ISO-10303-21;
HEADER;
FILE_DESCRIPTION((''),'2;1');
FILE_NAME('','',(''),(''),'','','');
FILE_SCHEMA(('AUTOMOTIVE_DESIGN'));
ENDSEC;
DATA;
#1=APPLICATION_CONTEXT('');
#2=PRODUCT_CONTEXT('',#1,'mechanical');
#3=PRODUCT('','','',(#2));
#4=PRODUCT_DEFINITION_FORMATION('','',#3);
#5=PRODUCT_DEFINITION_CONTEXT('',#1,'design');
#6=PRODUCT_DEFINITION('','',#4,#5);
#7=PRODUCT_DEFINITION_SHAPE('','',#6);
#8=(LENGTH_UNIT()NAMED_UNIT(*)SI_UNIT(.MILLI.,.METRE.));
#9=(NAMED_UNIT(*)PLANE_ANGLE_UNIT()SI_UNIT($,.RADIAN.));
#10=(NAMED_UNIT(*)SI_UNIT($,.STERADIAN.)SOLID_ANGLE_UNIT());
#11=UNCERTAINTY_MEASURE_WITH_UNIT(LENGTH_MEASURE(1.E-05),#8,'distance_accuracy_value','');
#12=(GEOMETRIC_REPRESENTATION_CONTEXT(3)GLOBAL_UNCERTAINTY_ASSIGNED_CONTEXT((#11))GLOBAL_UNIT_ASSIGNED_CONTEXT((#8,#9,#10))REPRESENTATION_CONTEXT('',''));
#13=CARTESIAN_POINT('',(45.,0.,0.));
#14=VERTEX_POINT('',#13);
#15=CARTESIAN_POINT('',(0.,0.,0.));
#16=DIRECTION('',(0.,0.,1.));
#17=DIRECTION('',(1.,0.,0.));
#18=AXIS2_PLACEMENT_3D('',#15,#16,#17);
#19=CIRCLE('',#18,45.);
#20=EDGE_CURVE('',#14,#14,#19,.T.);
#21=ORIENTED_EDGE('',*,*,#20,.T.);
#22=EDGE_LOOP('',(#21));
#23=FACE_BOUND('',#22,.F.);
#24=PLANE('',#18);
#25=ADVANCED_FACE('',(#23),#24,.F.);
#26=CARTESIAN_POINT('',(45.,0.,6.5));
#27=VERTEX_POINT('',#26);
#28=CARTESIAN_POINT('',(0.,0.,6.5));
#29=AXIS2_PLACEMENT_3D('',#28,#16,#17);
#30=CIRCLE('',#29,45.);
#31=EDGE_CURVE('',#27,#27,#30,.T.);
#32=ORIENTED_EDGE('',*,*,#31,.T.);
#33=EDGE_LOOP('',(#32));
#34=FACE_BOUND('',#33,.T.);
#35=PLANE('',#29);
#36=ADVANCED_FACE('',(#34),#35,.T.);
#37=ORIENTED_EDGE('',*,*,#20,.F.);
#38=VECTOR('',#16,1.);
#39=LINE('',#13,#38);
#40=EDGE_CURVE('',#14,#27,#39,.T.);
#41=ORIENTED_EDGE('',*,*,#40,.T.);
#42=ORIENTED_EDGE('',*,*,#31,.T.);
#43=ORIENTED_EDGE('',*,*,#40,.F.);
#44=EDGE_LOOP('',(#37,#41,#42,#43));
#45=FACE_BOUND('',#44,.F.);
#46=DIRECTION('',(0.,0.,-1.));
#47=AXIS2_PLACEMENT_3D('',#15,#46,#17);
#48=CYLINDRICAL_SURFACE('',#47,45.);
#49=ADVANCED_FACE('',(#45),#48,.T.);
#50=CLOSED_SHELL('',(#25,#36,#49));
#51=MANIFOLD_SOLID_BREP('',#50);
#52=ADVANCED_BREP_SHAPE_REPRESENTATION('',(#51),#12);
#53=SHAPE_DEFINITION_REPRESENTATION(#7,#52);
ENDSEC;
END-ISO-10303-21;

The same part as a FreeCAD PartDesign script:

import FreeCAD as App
import Part
import Sketcher

doc = App.newDocument("Part")
params = doc.addObject("Spreadsheet::Sheet", "Params")
for row, (alias, value) in enumerate([
    ("sketch1_diameter", "90 mm"),
    ("pad1_length", "6.5 mm"),
], start=1):
    params.set(f"A{row}", alias)
    params.set(f"B{row}", "=" + value)
    params.setAlias(f"B{row}", alias)

body = doc.addObject("PartDesign::Body", "Body")

# Sketch on XY plane
sketch1 = doc.addObject("Sketcher::SketchObject", "Sketch")
body.addObject(sketch1)
sketch1.AttachmentSupport = (doc.XY_Plane, [""])
sketch1.MapMode = "FlatFace"
sketch1.addGeometry(Part.Circle(App.Vector(0, 0, 0), App.Vector(0, 0, 1), 45), False)
sketch1.addConstraint([
    Sketcher.Constraint("Coincident", 0, 3, -1, 1),
    Sketcher.Constraint("Diameter", 0, 90.0),
])
sketch1.setExpression("Constraints[1]", "Params.sketch1_diameter")
pad1 = doc.addObject("PartDesign::Pad", "Pad")
body.addObject(pad1)
pad1.Profile = sketch1
pad1.setExpression("Length", "Params.pad1_length")

doc.recompute()
